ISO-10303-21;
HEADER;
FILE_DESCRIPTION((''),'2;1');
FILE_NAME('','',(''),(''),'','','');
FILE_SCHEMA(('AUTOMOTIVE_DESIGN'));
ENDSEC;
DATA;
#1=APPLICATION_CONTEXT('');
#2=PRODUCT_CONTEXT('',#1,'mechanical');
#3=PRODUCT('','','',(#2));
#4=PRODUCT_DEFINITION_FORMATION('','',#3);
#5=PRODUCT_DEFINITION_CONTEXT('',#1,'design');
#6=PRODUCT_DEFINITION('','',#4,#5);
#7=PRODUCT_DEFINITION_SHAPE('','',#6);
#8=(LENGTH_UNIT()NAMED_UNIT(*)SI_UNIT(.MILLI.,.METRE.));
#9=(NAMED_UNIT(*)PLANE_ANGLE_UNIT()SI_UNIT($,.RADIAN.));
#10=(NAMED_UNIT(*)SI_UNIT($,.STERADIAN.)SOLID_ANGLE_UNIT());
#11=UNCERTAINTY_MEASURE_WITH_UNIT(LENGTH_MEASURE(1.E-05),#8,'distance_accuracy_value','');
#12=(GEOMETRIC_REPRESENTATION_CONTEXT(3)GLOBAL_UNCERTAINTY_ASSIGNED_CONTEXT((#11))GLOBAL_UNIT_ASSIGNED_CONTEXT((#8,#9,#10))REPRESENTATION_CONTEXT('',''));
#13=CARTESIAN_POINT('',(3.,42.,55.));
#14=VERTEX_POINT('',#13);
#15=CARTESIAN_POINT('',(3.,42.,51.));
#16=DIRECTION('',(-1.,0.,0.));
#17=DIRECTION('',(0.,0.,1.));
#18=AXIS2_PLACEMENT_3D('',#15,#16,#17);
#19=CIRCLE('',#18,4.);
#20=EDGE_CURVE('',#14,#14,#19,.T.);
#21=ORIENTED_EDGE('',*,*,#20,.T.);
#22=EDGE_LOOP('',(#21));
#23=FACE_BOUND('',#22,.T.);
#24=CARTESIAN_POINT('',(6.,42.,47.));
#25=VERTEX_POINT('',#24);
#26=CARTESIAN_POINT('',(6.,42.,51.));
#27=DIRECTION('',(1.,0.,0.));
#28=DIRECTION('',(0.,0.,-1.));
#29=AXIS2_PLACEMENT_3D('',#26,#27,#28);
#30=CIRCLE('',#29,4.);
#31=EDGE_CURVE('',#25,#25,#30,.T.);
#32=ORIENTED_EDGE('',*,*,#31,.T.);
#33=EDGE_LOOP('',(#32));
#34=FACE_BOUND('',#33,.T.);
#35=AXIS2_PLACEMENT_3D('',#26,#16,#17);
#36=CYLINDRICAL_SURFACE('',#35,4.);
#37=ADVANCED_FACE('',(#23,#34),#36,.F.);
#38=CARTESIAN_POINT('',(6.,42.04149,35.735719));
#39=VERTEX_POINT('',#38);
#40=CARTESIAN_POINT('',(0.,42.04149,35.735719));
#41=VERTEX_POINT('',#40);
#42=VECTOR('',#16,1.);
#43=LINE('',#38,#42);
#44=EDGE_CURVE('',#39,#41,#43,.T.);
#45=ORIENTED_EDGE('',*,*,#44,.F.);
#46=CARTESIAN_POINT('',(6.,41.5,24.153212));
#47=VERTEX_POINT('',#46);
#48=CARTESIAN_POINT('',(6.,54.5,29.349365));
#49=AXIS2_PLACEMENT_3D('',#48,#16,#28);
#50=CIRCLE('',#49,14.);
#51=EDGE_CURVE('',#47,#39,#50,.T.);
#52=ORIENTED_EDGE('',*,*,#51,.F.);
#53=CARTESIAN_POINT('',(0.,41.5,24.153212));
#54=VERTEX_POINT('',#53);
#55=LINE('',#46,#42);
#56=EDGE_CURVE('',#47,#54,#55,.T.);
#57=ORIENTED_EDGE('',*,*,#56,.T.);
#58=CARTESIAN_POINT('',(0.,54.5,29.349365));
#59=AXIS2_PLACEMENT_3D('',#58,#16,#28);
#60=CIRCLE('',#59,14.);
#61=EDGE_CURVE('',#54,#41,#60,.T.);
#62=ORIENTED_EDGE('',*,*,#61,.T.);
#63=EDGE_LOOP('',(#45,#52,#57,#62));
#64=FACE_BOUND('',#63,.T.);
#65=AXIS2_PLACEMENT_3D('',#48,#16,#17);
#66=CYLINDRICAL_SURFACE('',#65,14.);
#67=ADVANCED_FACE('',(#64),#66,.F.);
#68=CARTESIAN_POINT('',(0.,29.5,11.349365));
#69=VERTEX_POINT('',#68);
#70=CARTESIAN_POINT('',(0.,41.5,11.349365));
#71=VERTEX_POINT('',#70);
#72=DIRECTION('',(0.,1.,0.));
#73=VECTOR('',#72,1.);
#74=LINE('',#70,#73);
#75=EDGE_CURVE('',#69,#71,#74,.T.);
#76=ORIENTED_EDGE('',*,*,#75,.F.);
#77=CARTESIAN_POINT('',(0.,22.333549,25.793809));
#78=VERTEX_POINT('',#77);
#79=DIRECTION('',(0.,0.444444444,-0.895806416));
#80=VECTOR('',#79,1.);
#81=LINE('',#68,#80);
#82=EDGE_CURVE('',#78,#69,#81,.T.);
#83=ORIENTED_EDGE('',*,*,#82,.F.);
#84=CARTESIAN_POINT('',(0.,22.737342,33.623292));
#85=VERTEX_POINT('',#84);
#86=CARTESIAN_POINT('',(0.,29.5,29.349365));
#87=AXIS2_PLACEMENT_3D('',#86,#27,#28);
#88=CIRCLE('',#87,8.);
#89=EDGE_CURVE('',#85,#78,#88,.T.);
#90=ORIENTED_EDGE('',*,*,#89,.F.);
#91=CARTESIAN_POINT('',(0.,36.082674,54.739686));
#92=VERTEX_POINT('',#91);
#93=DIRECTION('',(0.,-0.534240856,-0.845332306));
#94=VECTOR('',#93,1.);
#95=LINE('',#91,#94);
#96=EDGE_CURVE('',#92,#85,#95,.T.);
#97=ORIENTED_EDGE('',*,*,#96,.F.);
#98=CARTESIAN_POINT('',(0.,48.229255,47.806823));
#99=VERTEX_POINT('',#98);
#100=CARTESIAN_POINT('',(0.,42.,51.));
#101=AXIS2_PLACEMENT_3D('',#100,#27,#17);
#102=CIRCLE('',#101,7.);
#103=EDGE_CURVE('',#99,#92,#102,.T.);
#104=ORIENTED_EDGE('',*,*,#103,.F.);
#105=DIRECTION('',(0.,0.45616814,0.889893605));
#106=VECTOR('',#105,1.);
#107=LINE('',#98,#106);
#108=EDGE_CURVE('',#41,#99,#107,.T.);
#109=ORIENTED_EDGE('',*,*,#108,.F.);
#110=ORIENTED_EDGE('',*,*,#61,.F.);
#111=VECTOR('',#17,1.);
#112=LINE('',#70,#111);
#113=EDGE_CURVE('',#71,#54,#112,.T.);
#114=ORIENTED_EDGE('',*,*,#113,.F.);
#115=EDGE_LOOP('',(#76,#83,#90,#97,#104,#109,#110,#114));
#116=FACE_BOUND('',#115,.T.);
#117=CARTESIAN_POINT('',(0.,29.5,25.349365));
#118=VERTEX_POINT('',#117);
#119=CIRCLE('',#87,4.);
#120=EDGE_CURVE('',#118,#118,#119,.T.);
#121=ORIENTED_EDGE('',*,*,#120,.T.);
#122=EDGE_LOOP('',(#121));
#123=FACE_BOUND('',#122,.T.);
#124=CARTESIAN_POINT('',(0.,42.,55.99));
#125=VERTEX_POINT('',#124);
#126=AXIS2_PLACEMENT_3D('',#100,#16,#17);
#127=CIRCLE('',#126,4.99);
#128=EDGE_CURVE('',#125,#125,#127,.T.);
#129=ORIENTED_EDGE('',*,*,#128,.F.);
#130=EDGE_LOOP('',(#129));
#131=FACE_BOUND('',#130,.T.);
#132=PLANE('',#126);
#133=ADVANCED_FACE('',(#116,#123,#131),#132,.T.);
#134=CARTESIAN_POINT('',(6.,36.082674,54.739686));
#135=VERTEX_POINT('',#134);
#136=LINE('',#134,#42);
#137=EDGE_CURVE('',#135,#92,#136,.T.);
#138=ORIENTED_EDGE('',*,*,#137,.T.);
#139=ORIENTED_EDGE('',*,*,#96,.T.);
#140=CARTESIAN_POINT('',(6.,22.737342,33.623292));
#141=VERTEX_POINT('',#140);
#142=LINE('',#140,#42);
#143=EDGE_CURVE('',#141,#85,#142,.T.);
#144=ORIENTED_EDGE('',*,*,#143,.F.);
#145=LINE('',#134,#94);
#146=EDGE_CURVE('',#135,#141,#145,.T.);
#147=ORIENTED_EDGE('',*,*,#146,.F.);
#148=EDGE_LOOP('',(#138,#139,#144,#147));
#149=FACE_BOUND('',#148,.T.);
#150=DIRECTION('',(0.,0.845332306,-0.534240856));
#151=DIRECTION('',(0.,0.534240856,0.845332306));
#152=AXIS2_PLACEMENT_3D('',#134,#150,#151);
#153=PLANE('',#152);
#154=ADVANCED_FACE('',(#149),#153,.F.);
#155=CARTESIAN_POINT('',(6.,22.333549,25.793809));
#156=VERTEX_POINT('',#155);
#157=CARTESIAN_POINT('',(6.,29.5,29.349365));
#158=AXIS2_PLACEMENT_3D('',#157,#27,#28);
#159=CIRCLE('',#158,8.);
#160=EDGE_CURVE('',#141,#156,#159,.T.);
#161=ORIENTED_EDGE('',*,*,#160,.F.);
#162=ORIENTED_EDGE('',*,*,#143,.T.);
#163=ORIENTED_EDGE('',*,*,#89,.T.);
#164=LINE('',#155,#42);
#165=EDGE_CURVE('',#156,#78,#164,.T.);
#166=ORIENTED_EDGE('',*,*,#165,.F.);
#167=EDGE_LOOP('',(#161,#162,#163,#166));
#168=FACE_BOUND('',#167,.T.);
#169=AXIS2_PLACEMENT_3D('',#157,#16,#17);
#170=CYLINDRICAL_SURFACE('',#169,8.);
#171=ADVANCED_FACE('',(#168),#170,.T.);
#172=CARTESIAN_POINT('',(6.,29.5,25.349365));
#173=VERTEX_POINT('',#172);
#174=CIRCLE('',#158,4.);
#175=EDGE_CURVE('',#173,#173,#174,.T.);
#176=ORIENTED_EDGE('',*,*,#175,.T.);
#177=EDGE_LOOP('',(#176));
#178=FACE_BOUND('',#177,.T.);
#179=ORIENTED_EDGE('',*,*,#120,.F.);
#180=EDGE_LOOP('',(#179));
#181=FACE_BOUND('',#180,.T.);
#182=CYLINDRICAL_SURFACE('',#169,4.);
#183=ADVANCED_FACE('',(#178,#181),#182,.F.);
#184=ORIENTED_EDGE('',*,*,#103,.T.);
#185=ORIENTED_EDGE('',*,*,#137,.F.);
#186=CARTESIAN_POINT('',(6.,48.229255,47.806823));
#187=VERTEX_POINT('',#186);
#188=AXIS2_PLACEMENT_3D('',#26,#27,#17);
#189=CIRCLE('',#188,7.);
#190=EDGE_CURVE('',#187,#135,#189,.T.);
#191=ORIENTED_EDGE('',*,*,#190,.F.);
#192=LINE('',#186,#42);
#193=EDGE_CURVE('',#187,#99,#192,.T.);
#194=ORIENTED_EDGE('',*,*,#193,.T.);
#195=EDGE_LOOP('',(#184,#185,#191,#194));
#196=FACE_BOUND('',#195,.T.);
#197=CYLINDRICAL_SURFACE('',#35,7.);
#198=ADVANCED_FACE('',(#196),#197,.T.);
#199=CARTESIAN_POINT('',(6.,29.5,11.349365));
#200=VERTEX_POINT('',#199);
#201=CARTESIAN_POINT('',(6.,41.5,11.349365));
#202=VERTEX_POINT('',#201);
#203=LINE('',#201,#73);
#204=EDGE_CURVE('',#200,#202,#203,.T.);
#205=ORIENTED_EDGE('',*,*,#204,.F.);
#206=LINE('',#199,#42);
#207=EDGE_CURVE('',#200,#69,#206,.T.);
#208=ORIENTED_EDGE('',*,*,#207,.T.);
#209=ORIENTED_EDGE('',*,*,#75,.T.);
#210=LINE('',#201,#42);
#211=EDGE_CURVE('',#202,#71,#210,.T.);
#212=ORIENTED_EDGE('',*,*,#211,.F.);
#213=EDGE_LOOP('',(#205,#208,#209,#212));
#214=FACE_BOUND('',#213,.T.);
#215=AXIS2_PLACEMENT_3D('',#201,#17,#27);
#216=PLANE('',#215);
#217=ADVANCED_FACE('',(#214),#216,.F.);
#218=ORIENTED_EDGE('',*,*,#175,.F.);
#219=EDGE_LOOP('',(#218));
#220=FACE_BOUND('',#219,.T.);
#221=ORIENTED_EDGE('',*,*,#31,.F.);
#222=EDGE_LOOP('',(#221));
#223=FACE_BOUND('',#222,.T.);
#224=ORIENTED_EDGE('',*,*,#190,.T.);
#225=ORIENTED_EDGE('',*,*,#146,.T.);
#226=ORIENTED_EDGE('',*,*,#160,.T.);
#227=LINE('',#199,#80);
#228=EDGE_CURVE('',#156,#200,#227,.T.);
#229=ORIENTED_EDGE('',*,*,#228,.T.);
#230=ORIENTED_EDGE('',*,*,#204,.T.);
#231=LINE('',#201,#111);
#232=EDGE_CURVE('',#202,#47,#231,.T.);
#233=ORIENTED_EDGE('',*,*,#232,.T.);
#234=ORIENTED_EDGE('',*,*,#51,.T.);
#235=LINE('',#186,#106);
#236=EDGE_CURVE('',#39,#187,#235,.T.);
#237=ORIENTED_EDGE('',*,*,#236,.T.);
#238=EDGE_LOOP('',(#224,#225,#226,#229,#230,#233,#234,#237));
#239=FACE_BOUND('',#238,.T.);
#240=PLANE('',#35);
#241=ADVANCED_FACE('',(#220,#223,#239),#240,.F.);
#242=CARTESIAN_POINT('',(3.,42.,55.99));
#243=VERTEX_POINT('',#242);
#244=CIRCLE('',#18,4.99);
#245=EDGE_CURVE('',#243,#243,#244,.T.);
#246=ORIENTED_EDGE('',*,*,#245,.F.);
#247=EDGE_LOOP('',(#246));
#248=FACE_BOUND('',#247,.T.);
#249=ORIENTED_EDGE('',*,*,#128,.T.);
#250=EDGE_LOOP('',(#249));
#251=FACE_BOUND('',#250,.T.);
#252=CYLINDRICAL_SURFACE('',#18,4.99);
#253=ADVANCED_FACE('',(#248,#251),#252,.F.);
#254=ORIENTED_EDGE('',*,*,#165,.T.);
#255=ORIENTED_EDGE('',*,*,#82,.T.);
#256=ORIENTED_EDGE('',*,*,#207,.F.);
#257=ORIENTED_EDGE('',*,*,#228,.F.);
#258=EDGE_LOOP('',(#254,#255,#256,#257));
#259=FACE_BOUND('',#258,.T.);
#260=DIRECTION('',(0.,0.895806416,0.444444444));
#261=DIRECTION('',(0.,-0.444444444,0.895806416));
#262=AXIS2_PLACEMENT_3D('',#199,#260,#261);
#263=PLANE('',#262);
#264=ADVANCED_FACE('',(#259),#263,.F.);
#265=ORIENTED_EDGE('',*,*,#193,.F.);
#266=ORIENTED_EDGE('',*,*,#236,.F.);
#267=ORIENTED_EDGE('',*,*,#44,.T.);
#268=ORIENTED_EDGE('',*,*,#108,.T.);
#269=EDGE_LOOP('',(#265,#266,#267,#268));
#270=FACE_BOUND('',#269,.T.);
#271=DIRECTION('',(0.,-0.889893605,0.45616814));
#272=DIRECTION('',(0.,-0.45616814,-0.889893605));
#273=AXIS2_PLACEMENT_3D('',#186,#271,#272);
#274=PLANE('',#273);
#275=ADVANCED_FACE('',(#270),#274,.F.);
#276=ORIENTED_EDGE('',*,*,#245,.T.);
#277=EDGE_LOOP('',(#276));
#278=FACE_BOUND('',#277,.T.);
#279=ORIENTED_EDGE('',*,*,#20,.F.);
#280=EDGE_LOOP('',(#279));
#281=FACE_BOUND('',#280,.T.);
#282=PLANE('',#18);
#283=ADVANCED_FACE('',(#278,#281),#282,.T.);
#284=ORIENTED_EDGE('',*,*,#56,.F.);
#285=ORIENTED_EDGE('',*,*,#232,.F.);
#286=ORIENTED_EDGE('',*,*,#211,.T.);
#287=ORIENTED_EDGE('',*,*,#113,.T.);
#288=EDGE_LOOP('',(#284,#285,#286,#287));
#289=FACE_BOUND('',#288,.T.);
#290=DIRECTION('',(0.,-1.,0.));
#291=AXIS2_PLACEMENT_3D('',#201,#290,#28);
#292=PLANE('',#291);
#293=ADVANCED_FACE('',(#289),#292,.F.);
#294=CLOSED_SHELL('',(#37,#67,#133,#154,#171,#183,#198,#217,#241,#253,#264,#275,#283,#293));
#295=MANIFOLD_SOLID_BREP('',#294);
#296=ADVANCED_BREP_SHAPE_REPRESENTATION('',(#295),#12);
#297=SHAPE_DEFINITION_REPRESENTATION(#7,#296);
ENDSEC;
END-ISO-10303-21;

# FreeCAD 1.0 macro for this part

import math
import FreeCAD as App
import Part
import Sketcher

doc = App.newDocument("Part")
body = doc.addObject("PartDesign::Body", "Body")

sketch1 = doc.addObject("Sketcher::SketchObject", "Sketch")
body.addObject(sketch1)
sketch1.AttachmentSupport = (doc.YZ_Plane, [""])
sketch1.MapMode = "FlatFace"
sketch1.addGeometry(Part.LineSegment(App.Vector(42.04149, 35.735719, 0), App.Vector(48.229255, 47.806823, 0)), False)
sketch1.addGeometry(Part.ArcOfCircle(Part.Circle(App.Vector(42, 51, 0), App.Vector(0, 0, 1), 7), math.radians(-27.14012), math.radians(147.707557)), False)
sketch1.addGeometry(Part.LineSegment(App.Vector(36.082674, 54.739686, 0), App.Vector(22.737342, 33.623292, 0)), False)
sketch1.addGeometry(Part.ArcOfCircle(Part.Circle(App.Vector(29.5, 29.349365, 0), App.Vector(0, 0, 1), 8), math.radians(147.707557), math.radians(206.3878)), False)
sketch1.addGeometry(Part.LineSegment(App.Vector(22.333549, 25.793809, 0), App.Vector(29.5, 11.349365, 0)), False)
sketch1.addGeometry(Part.LineSegment(App.Vector(29.5, 11.349365, 0), App.Vector(41.5, 11.349365, 0)), False)
sketch1.addGeometry(Part.LineSegment(App.Vector(41.5, 11.349365, 0), App.Vector(41.5, 24.153212, 0)), False)
sketch1.addGeometry(Part.ArcOfCircle(Part.Circle(App.Vector(54.5, 29.349365, 0), App.Vector(0, 0, 1), 14), math.radians(152.85988), math.radians(201.786789)), False)
sketch1.addGeometry(Part.Circle(App.Vector(29.5, 29.349365, 0), App.Vector(0, 0, 1), 4), False)
sketch1.addGeometry(Part.Circle(App.Vector(42, 51, 0), App.Vector(0, 0, 1), 4), False)
sketch1.addConstraint(Sketcher.Constraint("Tangent", 0, 2, 1, 1))
sketch1.addConstraint(Sketcher.Constraint("Tangent", 1, 2, 2, 1))
sketch1.addConstraint(Sketcher.Constraint("Tangent", 2, 2, 3, 1))
sketch1.addConstraint(Sketcher.Constraint("Tangent", 3, 2, 4, 1))
sketch1.addConstraint(Sketcher.Constraint("Coincident", 4, 2, 5, 1))
sketch1.addConstraint(Sketcher.Constraint("Coincident", 5, 2, 6, 1))
sketch1.addConstraint(Sketcher.Constraint("Coincident", 6, 2, 7, 2))
sketch1.addConstraint(Sketcher.Constraint("Tangent", 7, 1, 0, 1))
sketch1.addConstraint(Sketcher.Constraint("Horizontal", 5))
sketch1.addConstraint(Sketcher.Constraint("Vertical", 6))
sketch1.addConstraint(Sketcher.Constraint("Coincident", 8, 3, 3, 3))
sketch1.addConstraint(Sketcher.Constraint("Coincident", 9, 3, 1, 3))
sketch1.addConstraint(Sketcher.Constraint("Equal", 8, 9))
sketch1.addConstraint(Sketcher.Constraint("Horizontal", 3, 3, 7, 3))
sketch1.addConstraint(Sketcher.Constraint("Vertical", 8, 3, 4, 2))
sketch1.addConstraint(Sketcher.Constraint("Diameter", 8, 8.0))
sketch1.addConstraint(Sketcher.Constraint("Radius", 1, 7.0))
sketch1.addConstraint(Sketcher.Constraint("Radius", 3, 8.0))
sketch1.addConstraint(Sketcher.Constraint("Radius", 7, 14.0))
sketch1.addConstraint(Sketcher.Constraint("DistanceX", 5, 1, 5, 2, 12.0))
sketch1.addConstraint(Sketcher.Constraint("DistanceX", -1, 1, 1, 3, 42.0))
sketch1.addConstraint(Sketcher.Constraint("DistanceY", -1, 1, 1, 3, 51.0))
sketch1.addConstraint(Sketcher.Constraint("DistanceX", 3, 3, 7, 3, 25.0))
sketch1.addConstraint(Sketcher.Constraint("DistanceY", 4, 2, 3, 3, 18.0))
sketch1.addConstraint(Sketcher.Constraint("DistanceX", -1, 1, 3, 3, 29.5))
sketch1.addConstraint(Sketcher.Constraint("Distance", 0, 13.56466))
pad1 = doc.addObject("PartDesign::Pad", "Pad")
body.addObject(pad1)
pad1.Profile = sketch1
pad1.Length = 6

sketch2 = doc.addObject("Sketcher::SketchObject", "Sketch001")
body.addObject(sketch2)
sketch2.AttachmentSupport = (doc.YZ_Plane, [""])
sketch2.MapMode = "FlatFace"
sketch2.addGeometry(Part.Circle(App.Vector(42, 51, 0), App.Vector(0, 0, 1), 4.99), False)
sketch2.addConstraint(Sketcher.Constraint("Diameter", 0, 9.98))
sketch2.addConstraint(Sketcher.Constraint("DistanceX", -1, 1, 0, 3, 42.0))
sketch2.addConstraint(Sketcher.Constraint("DistanceY", -1, 1, 0, 3, 51.0))
pocket1 = doc.addObject("PartDesign::Pocket", "Pocket")
body.addObject(pocket1)
pocket1.Profile = sketch2
pocket1.Length = 3
pocket1.Reversed = True

doc.recompute()
